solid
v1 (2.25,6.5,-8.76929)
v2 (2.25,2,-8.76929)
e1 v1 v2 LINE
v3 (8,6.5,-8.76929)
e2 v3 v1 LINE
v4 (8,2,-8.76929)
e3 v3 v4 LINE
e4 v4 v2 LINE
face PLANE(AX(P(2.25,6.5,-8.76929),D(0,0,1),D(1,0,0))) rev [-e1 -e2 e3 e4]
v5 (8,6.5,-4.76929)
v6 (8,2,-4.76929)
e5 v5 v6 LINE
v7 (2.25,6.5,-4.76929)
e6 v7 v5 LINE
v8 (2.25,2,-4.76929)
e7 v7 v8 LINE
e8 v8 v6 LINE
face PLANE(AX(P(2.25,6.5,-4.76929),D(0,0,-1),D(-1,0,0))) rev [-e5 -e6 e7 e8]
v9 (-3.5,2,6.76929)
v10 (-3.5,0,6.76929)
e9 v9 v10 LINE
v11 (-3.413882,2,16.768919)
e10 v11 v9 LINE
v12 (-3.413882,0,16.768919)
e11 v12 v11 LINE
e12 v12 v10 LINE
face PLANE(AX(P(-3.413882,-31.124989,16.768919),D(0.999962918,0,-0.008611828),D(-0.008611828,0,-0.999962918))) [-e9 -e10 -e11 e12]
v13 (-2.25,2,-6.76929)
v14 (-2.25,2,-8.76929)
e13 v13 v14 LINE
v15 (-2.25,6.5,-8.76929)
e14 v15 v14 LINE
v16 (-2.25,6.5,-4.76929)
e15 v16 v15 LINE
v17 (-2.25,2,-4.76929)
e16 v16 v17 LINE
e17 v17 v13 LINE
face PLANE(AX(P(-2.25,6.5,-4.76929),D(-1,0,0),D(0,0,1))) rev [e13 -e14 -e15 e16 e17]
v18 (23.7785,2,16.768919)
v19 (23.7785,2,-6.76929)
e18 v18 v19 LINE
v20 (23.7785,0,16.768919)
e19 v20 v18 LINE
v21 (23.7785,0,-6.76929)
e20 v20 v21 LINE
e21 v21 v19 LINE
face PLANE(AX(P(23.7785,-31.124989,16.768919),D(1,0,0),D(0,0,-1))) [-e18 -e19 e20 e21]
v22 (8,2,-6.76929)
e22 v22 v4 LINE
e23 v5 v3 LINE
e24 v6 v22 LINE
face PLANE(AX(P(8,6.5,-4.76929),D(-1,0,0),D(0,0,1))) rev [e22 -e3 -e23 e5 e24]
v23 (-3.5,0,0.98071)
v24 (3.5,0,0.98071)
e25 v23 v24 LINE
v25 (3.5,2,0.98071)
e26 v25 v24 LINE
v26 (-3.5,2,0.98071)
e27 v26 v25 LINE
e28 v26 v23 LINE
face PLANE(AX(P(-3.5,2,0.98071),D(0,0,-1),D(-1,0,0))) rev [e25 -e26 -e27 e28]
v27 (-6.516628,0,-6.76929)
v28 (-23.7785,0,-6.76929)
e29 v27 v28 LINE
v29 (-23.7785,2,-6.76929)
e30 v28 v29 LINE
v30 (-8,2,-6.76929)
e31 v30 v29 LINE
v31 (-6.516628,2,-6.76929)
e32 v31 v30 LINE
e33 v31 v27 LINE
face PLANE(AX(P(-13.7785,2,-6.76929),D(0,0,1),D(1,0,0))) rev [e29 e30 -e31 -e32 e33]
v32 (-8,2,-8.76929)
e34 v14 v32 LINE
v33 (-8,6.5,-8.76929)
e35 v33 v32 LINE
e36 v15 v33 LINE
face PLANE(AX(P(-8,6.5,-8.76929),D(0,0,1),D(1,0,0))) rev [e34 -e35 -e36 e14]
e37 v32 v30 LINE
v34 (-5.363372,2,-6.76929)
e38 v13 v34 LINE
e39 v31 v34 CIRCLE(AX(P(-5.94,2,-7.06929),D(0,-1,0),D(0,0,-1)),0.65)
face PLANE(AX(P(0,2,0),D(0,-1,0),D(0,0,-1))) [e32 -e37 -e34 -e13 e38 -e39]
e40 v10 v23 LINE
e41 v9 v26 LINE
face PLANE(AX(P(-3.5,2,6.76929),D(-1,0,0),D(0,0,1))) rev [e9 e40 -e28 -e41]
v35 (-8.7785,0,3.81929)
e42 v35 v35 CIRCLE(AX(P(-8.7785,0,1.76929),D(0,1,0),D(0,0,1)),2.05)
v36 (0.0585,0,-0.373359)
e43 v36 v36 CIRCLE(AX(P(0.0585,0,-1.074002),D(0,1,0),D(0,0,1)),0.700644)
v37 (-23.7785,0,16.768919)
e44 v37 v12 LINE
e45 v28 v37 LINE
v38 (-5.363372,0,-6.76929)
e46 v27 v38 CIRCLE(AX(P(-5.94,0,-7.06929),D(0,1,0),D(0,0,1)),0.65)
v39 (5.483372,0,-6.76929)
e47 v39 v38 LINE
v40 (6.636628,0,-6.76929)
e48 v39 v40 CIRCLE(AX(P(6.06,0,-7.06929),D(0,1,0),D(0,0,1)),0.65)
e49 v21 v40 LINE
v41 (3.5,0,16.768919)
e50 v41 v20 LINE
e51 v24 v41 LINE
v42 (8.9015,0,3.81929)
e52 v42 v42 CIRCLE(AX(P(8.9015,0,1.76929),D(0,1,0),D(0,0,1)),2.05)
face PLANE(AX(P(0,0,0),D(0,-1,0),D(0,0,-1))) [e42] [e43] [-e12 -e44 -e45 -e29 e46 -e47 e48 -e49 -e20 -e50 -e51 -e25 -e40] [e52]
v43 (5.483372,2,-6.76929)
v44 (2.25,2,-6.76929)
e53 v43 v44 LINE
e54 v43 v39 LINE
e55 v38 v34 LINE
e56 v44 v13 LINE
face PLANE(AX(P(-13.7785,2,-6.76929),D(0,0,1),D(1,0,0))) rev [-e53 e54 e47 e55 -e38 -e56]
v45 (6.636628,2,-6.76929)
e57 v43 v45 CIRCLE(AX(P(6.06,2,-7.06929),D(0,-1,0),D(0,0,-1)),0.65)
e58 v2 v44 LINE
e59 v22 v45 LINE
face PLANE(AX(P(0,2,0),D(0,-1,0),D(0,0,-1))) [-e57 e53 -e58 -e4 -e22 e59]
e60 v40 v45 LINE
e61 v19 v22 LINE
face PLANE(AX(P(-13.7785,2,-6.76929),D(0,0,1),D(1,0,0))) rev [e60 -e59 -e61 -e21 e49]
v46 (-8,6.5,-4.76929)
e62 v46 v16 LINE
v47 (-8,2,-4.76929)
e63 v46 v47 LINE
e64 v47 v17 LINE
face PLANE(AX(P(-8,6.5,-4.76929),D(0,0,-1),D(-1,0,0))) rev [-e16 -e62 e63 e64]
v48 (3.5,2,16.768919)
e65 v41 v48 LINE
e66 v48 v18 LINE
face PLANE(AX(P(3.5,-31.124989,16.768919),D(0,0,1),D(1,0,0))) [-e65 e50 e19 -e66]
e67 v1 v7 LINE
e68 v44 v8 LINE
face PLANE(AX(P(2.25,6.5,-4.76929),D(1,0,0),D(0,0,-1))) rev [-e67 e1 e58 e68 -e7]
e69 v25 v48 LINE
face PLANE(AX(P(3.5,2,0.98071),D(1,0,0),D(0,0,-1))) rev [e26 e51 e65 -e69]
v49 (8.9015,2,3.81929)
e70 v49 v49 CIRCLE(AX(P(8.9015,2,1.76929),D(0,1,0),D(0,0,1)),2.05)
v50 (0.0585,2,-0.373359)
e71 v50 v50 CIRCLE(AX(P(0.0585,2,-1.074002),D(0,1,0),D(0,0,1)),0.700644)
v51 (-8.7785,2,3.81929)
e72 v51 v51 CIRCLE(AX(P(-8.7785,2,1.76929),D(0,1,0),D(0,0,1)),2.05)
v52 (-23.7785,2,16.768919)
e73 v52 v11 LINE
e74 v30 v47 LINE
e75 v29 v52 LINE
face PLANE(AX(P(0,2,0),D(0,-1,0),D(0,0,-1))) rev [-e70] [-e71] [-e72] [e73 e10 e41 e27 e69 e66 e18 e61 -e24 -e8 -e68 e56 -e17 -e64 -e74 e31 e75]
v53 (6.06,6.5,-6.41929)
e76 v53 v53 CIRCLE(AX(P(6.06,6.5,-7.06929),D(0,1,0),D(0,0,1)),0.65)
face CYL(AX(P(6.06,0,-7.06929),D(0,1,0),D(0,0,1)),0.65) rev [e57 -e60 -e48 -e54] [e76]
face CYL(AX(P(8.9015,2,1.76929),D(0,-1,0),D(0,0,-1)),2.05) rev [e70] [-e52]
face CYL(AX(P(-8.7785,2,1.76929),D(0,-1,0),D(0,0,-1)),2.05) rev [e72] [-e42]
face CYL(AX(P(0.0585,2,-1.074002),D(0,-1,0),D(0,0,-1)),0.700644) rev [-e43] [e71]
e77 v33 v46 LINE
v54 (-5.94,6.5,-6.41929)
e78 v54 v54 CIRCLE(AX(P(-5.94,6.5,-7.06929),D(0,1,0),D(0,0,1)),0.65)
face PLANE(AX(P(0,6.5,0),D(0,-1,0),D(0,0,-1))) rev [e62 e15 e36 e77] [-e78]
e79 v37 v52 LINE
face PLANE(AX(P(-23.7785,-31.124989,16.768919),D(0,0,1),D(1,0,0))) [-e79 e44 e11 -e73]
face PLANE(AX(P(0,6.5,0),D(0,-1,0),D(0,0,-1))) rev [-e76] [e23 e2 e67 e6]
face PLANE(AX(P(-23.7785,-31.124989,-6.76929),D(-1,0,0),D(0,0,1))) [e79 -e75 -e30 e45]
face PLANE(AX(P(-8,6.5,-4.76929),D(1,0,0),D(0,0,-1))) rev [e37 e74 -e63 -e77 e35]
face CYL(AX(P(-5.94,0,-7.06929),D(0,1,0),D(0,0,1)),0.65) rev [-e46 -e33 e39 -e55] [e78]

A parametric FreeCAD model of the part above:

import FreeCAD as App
import Part
import Sketcher


def add_polygon(sketch, points):
    """Adds a closed chain of lines whose ends are joined by coincident constraints."""
    first, n = sketch.GeometryCount, len(points)
    for a, b in zip(points, points[1:] + points[:1]):
        sketch.addGeometry(Part.LineSegment(App.Vector(*a, 0), App.Vector(*b, 0)), False)
    for i in range(n):
        sketch.addConstraint(Sketcher.Constraint("Coincident", first + i, 2, first + (i + 1) % n, 1))

doc = App.newDocument("Part")
body = doc.addObject("PartDesign::Body", "Body")

sketch1 = body.newObject("Sketcher::SketchObject", "Sketch")
sketch1.AttachmentSupport = (doc.getObject("XZ_Plane"), [""])
sketch1.MapMode = "FlatFace"
add_polygon(sketch1, [(-3.5, 6.8), (-3.5, 1), (3.5, 1), (3.5, 6.8), (13.8, 6.8), (13.8, -6.8), (-13.8, -6.8), (-13.8, 6.8)])
sketch1.addGeometry(Part.Circle(App.Vector(-8.8, 1.8, 0), App.Vector(0, 0, 1), 2), False)
sketch1.addGeometry(Part.Circle(App.Vector(8.9, 1.8, 0), App.Vector(0, 0, 1), 2), False)
sketch1.addGeometry(Part.Circle(App.Vector(0.1, -1.1, 0), App.Vector(0, 0, 1), 0.7), False)
sketch1.addConstraint([
    Sketcher.Constraint("Vertical", 0),
    Sketcher.Constraint("Horizontal", 1),
    Sketcher.Constraint("Vertical", 2),
    Sketcher.Constraint("Horizontal", 3),
    Sketcher.Constraint("Vertical", 4),
    Sketcher.Constraint("Horizontal", 5),
    Sketcher.Constraint("Vertical", 6),
    Sketcher.Constraint("Horizontal", 7),
    Sketcher.Constraint("Equal", 8, 9),
    Sketcher.Constraint("Symmetric", 3, 2, 5, 2, -1, 1),
    Sketcher.Constraint("Symmetric", 2, 2, 7, 2, -2),
    Sketcher.Constraint("Horizontal", 8, 3, 9, 3),
    Sketcher.Constraint("Diameter", 8, 4.1),
    Sketcher.Constraint("DistanceX", 1, 1, 1, 2, 7.0),
    Sketcher.Constraint("DistanceY", 9, 3, 2, 2, 5.0),
    Sketcher.Constraint("DistanceX", 5, 2, 8, 3, 5.0),
    Sketcher.Constraint("DistanceX", 5, 2, 5, 1, 27.557),
    Sketcher.Constraint("DistanceX", 8, 3, 9, 3, 17.68),
    Sketcher.Constraint("DistanceX", 10, 3, 3, 2, 13.72),
    Sketcher.Constraint("DistanceY", 4, 2, 1, 2, 7.75),
    Sketcher.Constraint("Diameter", 10, 1.401287),
    Sketcher.Constraint("DistanceY", 0, 2, 0, 1, 5.78858),
    Sketcher.Constraint("DistanceY", 10, 3, -1, 1, 1.074002),
])
pad1 = body.newObject("PartDesign::Pad", "Pad")
pad1.Profile = sketch1
pad1.Length = 2
pad1.Reversed = True

sketch2 = body.newObject("Sketcher::SketchObject", "Sketch001")
sketch2.AttachmentSupport = (doc.getObject("XZ_Plane"), [""])
sketch2.MapMode = "FlatFace"
sketch2.AttachmentOffset = App.Placement(App.Vector(0, 0, -2), App.Rotation())
add_polygon(sketch2, [(-8, -8.8), (-8, -4.8), (-2.2, -4.8), (-2.2, -8.8)])
add_polygon(sketch2, [(2.2, -8.8), (2.2, -4.8), (8, -4.8), (8, -8.8)])
sketch2.addConstraint([
    Sketcher.Constraint("Vertical", 0),
    Sketcher.Constraint("Horizontal", 1),
    Sketcher.Constraint("Vertical", 2),
    Sketcher.Constraint("Horizontal", 3),
    Sketcher.Constraint("Vertical", 4),
    Sketcher.Constraint("Horizontal", 5),
    Sketcher.Constraint("Vertical", 6),
    Sketcher.Constraint("Horizontal", 7),
    Sketcher.Constraint("Symmetric", 1, 2, 4, 2, -2),
    Sketcher.Constraint("Symmetric", 3, 2, 6, 2, -2),
    Sketcher.Constraint("DistanceY", 0, 1, 0, 2, 4.0),
    Sketcher.Constraint("DistanceX", 0, 2, -1, 1, 8.0),
    Sketcher.Constraint("DistanceX", 1, 1, 1, 2, 5.75),
    Sketcher.Constraint("DistanceY", 0, 2, -1, 1, 4.76929),
])
pad2 = body.newObject("PartDesign::Pad", "Pad001")
pad2.Profile = sketch2
pad2.Length = 4.5
pad2.Reversed = True

sketch3 = body.newObject("Sketcher::SketchObject", "Sketch002")
sketch3.AttachmentSupport = (doc.getObject("XZ_Plane"), [""])
sketch3.MapMode = "FlatFace"
sketch3.AttachmentOffset = App.Placement(App.Vector(0, 0, -6.5), App.Rotation())
sketch3.addGeometry([
    Part.Circle(App.Vector(-5.9, -7.1, 0), App.Vector(0, 0, 1), 0.7),
    Part.Circle(App.Vector(6.1, -7.1, 0), App.Vector(0, 0, 1), 0.7),
], False)
sketch3.addConstraint([
    Sketcher.Constraint("Equal", 0, 1),
    Sketcher.Constraint("Horizontal", 0, 3, 1, 3),
    Sketcher.Constraint("Diameter", 0, 1.3),
    Sketcher.Constraint("DistanceX", 0, 3, 1, 3, 12.0),
    Sketcher.Constraint("DistanceX", 0, 3, -1, 1, 5.94),
    Sketcher.Constraint("DistanceY", 0, 3, -1, 1, 7.06929),
])
pocket1 = body.newObject("PartDesign::Pocket", "Pocket")
pocket1.Profile = sketch3
pocket1.Type = "ThroughAll"
pocket1.Reversed = True

sketch4 = body.newObject("Sketcher::SketchObject", "Sketch003")
sketch4.AttachmentSupport = (doc.getObject("XZ_Plane"), [""])
sketch4.MapMode = "FlatFace"
sketch4.AttachmentOffset = App.Placement(App.Vector(0, 0, -2), App.Rotation())
add_polygon(sketch4, [(-14, -7), (-24, -7), (-24, 17), (-3, 17), (-4, 7), (-14, 7)])
add_polygon(sketch4, [(4, 7), (4, 17), (24, 17), (24, -7), (14, -7), (14, 7)])
sketch4.addConstraint([
    Sketcher.Constraint("Horizontal", 0),
    Sketcher.Constraint("Vertical", 1),
    Sketcher.Constraint("Horizontal", 2),
    Sketcher.Constraint("Horizontal", 4),
    Sketcher.Constraint("Vertical", 5),
    Sketcher.Constraint("Vertical", 6),
    Sketcher.Constraint("Horizontal", 7),
    Sketcher.Constraint("Vertical", 8),
    Sketcher.Constraint("Horizontal", 9),
    Sketcher.Constraint("Vertical", 10),
    Sketcher.Constraint("Horizontal", 11),
    Sketcher.Constraint("Symmetric", 4, 2, 9, 2, -1, 1),
    Sketcher.Constraint("Symmetric", 1, 2, 7, 2, -2),
    Sketcher.Constraint("Symmetric", 3, 2, 11, 2, -2),
    Sketcher.Constraint("Horizontal", 5, 2, 8, 2),
    Sketcher.Constraint("DistanceX", 0, 2, 0, 1, 10.0),
    Sketcher.Constraint("Distance", 3, 10.0),
    Sketcher.Constraint("DistanceX", 3, 2, 6, 2, 7.0),
    Sketcher.Constraint("DistanceX", 4, 2, 4, 1, 10.2785),
    Sketcher.Constraint("DistanceX", 2, 1, 2, 2, 20.364618),
    Sketcher.Constraint("DistanceY", 1, 1, 1, 2, 23.538209),
])
pad3 = body.newObject("PartDesign::Pad", "Pad002")
pad3.Profile = sketch4
pad3.Length = 2

doc.recompute()
